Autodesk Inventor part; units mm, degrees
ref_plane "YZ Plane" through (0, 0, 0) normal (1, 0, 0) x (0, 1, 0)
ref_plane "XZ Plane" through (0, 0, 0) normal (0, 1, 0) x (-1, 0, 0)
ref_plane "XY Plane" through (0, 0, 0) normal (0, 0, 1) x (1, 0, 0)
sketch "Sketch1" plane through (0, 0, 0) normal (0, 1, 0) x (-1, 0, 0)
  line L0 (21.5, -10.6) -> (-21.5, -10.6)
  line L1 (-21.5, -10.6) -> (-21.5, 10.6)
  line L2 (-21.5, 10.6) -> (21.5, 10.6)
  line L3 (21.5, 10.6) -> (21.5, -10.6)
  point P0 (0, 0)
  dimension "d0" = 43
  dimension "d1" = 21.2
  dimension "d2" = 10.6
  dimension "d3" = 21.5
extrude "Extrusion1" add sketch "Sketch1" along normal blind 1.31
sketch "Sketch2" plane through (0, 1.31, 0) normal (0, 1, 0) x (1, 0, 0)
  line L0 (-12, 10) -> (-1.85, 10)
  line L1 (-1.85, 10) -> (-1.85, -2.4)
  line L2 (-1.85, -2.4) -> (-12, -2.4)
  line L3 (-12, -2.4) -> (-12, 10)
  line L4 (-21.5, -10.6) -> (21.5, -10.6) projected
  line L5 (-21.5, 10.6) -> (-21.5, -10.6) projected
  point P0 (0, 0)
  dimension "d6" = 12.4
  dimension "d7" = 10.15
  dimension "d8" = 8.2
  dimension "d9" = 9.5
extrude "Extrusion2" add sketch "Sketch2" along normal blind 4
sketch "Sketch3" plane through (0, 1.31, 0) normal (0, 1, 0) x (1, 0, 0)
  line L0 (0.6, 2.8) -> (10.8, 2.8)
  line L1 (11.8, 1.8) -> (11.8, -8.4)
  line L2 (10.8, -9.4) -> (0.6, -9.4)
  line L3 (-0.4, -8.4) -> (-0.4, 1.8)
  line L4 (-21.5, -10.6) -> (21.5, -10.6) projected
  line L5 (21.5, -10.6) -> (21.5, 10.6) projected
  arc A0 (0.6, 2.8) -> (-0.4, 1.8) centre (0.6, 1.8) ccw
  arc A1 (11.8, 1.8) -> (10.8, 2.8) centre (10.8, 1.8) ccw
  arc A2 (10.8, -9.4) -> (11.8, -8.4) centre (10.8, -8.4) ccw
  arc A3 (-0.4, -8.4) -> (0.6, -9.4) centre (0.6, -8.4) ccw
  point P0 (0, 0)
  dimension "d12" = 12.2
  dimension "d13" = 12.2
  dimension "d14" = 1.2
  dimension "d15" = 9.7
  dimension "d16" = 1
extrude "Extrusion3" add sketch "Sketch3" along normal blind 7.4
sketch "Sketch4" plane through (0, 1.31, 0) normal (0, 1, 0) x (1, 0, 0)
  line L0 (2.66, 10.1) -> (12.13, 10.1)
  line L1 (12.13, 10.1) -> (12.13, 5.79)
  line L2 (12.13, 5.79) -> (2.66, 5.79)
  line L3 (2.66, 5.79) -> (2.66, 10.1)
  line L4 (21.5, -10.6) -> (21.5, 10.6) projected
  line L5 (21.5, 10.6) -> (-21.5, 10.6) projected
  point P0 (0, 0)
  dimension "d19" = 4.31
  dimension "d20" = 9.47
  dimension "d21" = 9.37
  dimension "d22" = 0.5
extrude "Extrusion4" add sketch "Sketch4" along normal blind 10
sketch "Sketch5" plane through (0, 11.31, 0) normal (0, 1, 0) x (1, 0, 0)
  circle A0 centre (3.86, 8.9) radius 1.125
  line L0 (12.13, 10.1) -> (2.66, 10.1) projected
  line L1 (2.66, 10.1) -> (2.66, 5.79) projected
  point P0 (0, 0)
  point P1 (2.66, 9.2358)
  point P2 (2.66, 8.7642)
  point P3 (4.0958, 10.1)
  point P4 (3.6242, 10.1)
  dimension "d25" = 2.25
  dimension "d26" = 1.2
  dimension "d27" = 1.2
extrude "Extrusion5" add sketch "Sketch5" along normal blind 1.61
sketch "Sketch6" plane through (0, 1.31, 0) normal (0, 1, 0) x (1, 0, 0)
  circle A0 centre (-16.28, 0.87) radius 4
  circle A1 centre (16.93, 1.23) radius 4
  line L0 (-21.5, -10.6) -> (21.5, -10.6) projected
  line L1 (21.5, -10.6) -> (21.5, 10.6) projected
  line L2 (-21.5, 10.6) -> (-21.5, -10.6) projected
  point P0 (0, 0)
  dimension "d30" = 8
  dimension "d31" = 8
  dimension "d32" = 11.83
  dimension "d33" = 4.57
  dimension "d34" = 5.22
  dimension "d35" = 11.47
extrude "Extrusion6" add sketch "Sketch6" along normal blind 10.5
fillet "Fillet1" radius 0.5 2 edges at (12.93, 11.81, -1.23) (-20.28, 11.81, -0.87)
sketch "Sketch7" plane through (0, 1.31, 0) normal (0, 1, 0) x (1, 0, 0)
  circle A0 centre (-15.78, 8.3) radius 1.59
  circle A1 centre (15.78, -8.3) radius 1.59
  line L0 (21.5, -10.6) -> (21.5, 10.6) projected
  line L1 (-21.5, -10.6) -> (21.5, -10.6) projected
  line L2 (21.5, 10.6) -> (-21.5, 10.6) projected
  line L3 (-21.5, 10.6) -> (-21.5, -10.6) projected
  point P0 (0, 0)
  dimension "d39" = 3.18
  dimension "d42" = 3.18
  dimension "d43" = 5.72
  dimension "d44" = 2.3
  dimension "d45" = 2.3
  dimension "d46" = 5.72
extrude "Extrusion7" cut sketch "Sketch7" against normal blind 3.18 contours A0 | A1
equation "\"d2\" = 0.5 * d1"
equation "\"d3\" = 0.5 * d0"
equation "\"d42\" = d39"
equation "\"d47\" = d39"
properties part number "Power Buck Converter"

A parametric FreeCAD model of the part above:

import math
import FreeCAD as App
import Part
import Sketcher


def edges_at(feature, points):
    """Names of the edges that pass closest to the given points."""
    edges = feature.Shape.Edges
    near = lambda p: min(range(len(edges)), key=lambda i: edges[i].distToShape(Part.Vertex(*p))[0])
    return sorted({f"Edge{near(p) + 1}" for p in points})

doc = App.newDocument("Part")
body = doc.addObject("PartDesign::Body", "Body")

sketch1 = doc.addObject("Sketcher::SketchObject", "Sketch")
body.addObject(sketch1)
sketch1.AttachmentSupport = (doc.XZ_Plane, [""])
sketch1.MapMode = "FlatFace"
sketch1.addGeometry([
    Part.LineSegment(App.Vector(22, -11, 0), App.Vector(-22, -11, 0)),
    Part.LineSegment(App.Vector(-22, -11, 0), App.Vector(-22, 11, 0)),
    Part.LineSegment(App.Vector(-22, 11, 0), App.Vector(22, 11, 0)),
    Part.LineSegment(App.Vector(22, 11, 0), App.Vector(22, -11, 0)),
], False)
sketch1.addConstraint([
    Sketcher.Constraint("Coincident", 0, 2, 1, 1),
    Sketcher.Constraint("Coincident", 1, 2, 2, 1),
    Sketcher.Constraint("Coincident", 2, 2, 3, 1),
    Sketcher.Constraint("Coincident", 3, 2, 0, 1),
    Sketcher.Constraint("Horizontal", 0),
    Sketcher.Constraint("Vertical", 1),
    Sketcher.Constraint("Horizontal", 2),
    Sketcher.Constraint("Vertical", 3),
    Sketcher.Constraint("Symmetric", 0, 2, 2, 2, -1, 1),
    Sketcher.Constraint("DistanceX", 0, 2, 0, 1, 43.0),
    Sketcher.Constraint("DistanceY", 1, 1, 1, 2, 21.2),
])
pad1 = doc.addObject("PartDesign::Pad", "Pad")
body.addObject(pad1)
pad1.Profile = sketch1
pad1.Length = 1.31
pad1.Reversed = True

sketch2 = doc.addObject("Sketcher::SketchObject", "Sketch001")
body.addObject(sketch2)
sketch2.AttachmentSupport = (doc.XZ_Plane, [""])
sketch2.MapMode = "FlatFace"
sketch2.AttachmentOffset = App.Placement(App.Vector(0, 0, -1.31), App.Rotation())
sketch2.addGeometry([
    Part.LineSegment(App.Vector(-2, -10, 0), App.Vector(-12, -10, 0)),
    Part.LineSegment(App.Vector(-12, -10, 0), App.Vector(-12, 2, 0)),
    Part.LineSegment(App.Vector(-12, 2, 0), App.Vector(-2, 2, 0)),
    Part.LineSegment(App.Vector(-2, 2, 0), App.Vector(-2, -10, 0)),
], False)
sketch2.addConstraint([
    Sketcher.Constraint("Coincident", 0, 2, 1, 1),
    Sketcher.Constraint("Coincident", 1, 2, 2, 1),
    Sketcher.Constraint("Coincident", 2, 2, 3, 1),
    Sketcher.Constraint("Coincident", 3, 2, 0, 1),
    Sketcher.Constraint("Horizontal", 0),
    Sketcher.Constraint("Vertical", 1),
    Sketcher.Constraint("Horizontal", 2),
    Sketcher.Constraint("Vertical", 3),
    Sketcher.Constraint("DistanceY", 1, 1, 1, 2, 12.4),
    Sketcher.Constraint("DistanceX", 0, 2, 0, 1, 10.15),
    Sketcher.Constraint("DistanceX", 0, 2, -1, 1, 12.0),
    Sketcher.Constraint("DistanceY", 0, 2, -1, 1, 10.0),
])
pad2 = doc.addObject("PartDesign::Pad", "Pad001")
body.addObject(pad2)
pad2.Profile = sketch2
pad2.Length = 4
pad2.Reversed = True

sketch3 = doc.addObject("Sketcher::SketchObject", "Sketch002")
body.addObject(sketch3)
sketch3.AttachmentSupport = (doc.XZ_Plane, [""])
sketch3.MapMode = "FlatFace"
sketch3.AttachmentOffset = App.Placement(App.Vector(0, 0, -1.31), App.Rotation())
sketch3.addGeometry([
    Part.LineSegment(App.Vector(10.8, -2.8, 0), App.Vector(0.6, -2.8, 0)),
    Part.ArcOfCircle(Part.Circle(App.Vector(0.6, -1.8, 0), App.Vector(0, 0, 1), 1), math.radians(180), math.radians(270)),
    Part.LineSegment(App.Vector(-0.4, -1.8, 0), App.Vector(-0.4, 8.4, 0)),
    Part.ArcOfCircle(Part.Circle(App.Vector(0.6, 8.4, 0), App.Vector(0, 0, 1), 1), math.radians(90), math.radians(180)),
    Part.LineSegment(App.Vector(0.6, 9.4, 0), App.Vector(10.8, 9.4, 0)),
    Part.ArcOfCircle(Part.Circle(App.Vector(10.8, 8.4, 0), App.Vector(0, 0, 1), 1), math.radians(0), math.radians(90)),
    Part.LineSegment(App.Vector(11.8, 8.4, 0), App.Vector(11.8, -1.8, 0)),
    Part.ArcOfCircle(Part.Circle(App.Vector(10.8, -1.8, 0), App.Vector(0, 0, 1), 1), math.radians(-90), math.radians(0)),
], False)
sketch3.addConstraint([
    Sketcher.Constraint("Tangent", 0, 2, 1, 2),
    Sketcher.Constraint("Tangent", 1, 1, 2, 1),
    Sketcher.Constraint("Tangent", 2, 2, 3, 2),
    Sketcher.Constraint("Tangent", 3, 1, 4, 1),
    Sketcher.Constraint("Tangent", 4, 2, 5, 2),
    Sketcher.Constraint("Tangent", 5, 1, 6, 1),
    Sketcher.Constraint("Tangent", 6, 2, 7, 2),
    Sketcher.Constraint("Tangent", 7, 1, 0, 1),
    Sketcher.Constraint("Horizontal", 0),
    Sketcher.Constraint("Vertical", 2),
    Sketcher.Constraint("Horizontal", 4),
    Sketcher.Constraint("Vertical", 6),
    Sketcher.Constraint("Equal", 1, 3),
    Sketcher.Constraint("Equal", 3, 5),
    Sketcher.Constraint("Equal", 5, 7),
    Sketcher.Constraint("Equal", 4, 2),
    Sketcher.Constraint("Radius", 1, 1.0),
    Sketcher.Constraint("DistanceX", 0, 2, 0, 1, 10.2),
    Sketcher.Constraint("DistanceX", -1, 1, 1, 3, 0.6),
    Sketcher.Constraint("DistanceY", 1, 3, -1, 1, 1.8),
])
pad3 = doc.addObject("PartDesign::Pad", "Pad002")
body.addObject(pad3)
pad3.Profile = sketch3
pad3.Length = 7.4
pad3.Reversed = True

sketch4 = doc.addObject("Sketcher::SketchObject", "Sketch003")
body.addObject(sketch4)
sketch4.AttachmentSupport = (doc.XZ_Plane, [""])
sketch4.MapMode = "FlatFace"
sketch4.AttachmentOffset = App.Placement(App.Vector(0, 0, -1.31), App.Rotation())
sketch4.addGeometry([
    Part.LineSegment(App.Vector(12.1, -10.1, 0), App.Vector(2.7, -10.1, 0)),
    Part.LineSegment(App.Vector(2.7, -10.1, 0), App.Vector(2.7, -5.8, 0)),
    Part.LineSegment(App.Vector(2.7, -5.8, 0), App.Vector(12.1, -5.8, 0)),
    Part.LineSegment(App.Vector(12.1, -5.8, 0), App.Vector(12.1, -10.1, 0)),
], False)
sketch4.addConstraint([
    Sketcher.Constraint("Coincident", 0, 2, 1, 1),
    Sketcher.Constraint("Coincident", 1, 2, 2, 1),
    Sketcher.Constraint("Coincident", 2, 2, 3, 1),
    Sketcher.Constraint("Coincident", 3, 2, 0, 1),
    Sketcher.Constraint("Horizontal", 0),
    Sketcher.Constraint("Vertical", 1),
    Sketcher.Constraint("Horizontal", 2),
    Sketcher.Constraint("Vertical", 3),
    Sketcher.Constraint("DistanceX", 0, 2, 0, 1, 9.47),
    Sketcher.Constraint("DistanceY", 1, 1, 1, 2, 4.31),
    Sketcher.Constraint("DistanceY", 0, 2, -1, 1, 10.1),
    Sketcher.Constraint("DistanceX", -1, 1, 0, 2, 2.66),
])
pad4 = doc.addObject("PartDesign::Pad", "Pad003")
body.addObject(pad4)
pad4.Profile = sketch4
pad4.Length = 10
pad4.Reversed = True

sketch5 = doc.addObject("Sketcher::SketchObject", "Sketch004")
body.addObject(sketch5)
sketch5.AttachmentSupport = (doc.XZ_Plane, [""])
sketch5.MapMode = "FlatFace"
sketch5.AttachmentOffset = App.Placement(App.Vector(0, 0, -11.31), App.Rotation())
sketch5.addGeometry(Part.Circle(App.Vector(3.9, -8.9, 0), App.Vector(0, 0, 1), 1.1), False)
sketch5.addConstraint([
    Sketcher.Constraint("Diameter", 0, 2.25),
    Sketcher.Constraint("DistanceY", 0, 3, -1, 1, 8.9),
    Sketcher.Constraint("DistanceX", -1, 1, 0, 3, 3.86),
])
pad5 = doc.addObject("PartDesign::Pad", "Pad004")
body.addObject(pad5)
pad5.Profile = sketch5
pad5.Length = 1.61
pad5.Reversed = True

sketch6 = doc.addObject("Sketcher::SketchObject", "Sketch005")
body.addObject(sketch6)
sketch6.AttachmentSupport = (doc.XZ_Plane, [""])
sketch6.MapMode = "FlatFace"
sketch6.AttachmentOffset = App.Placement(App.Vector(0, 0, -1.31), App.Rotation())
sketch6.addGeometry([
    Part.Circle(App.Vector(-16.3, -0.9, 0), App.Vector(0, 0, 1), 4),
    Part.Circle(App.Vector(16.9, -1.2, 0), App.Vector(0, 0, 1), 4),
], False)
sketch6.addConstraint([
    Sketcher.Constraint("Equal", 0, 1),
    Sketcher.Constraint("Diameter", 0, 8.0),
    Sketcher.Constraint("DistanceX", 0, 3, -1, 1, 16.28),
    Sketcher.Constraint("DistanceY", 0, 3, -1, 1, 0.87),
    Sketcher.Constraint("DistanceX", -1, 1, 1, 3, 16.93),
    Sketcher.Constraint("DistanceY", 1, 3, -1, 1, 1.23),
])
pad6 = doc.addObject("PartDesign::Pad", "Pad005")
body.addObject(pad6)
pad6.Profile = sketch6
pad6.Length = 10.5
pad6.Reversed = True
doc.recompute()

fillet = doc.addObject("PartDesign::Fillet", "Fillet")
body.addObject(fillet)
fillet.Base = (pad6, edges_at(pad6, [(12.93, 11.81, -1.23), (-20.28, 11.81, -0.87)]))
fillet.Radius = 0.5

sketch7 = doc.addObject("Sketcher::SketchObject", "Sketch006")
body.addObject(sketch7)
sketch7.AttachmentSupport = (doc.XZ_Plane, [""])
sketch7.MapMode = "FlatFace"
sketch7.AttachmentOffset = App.Placement(App.Vector(0, 0, -1.31), App.Rotation())
sketch7.addGeometry([
    Part.Circle(App.Vector(-15.8, -8.3, 0), App.Vector(0, 0, 1), 1.6),
    Part.Circle(App.Vector(15.8, 8.3, 0), App.Vector(0, 0, 1), 1.6),
], False)
sketch7.addConstraint([
    Sketcher.Constraint("Equal", 0, 1),
    Sketcher.Constraint("Symmetric", 0, 3, 1, 3, -1, 1),
    Sketcher.Constraint("Diameter", 0, 3.18),
    Sketcher.Constraint("DistanceY", 0, 3, -1, 1, 8.3),
    Sketcher.Constraint("DistanceX", 0, 3, -1, 1, 15.78),
])
pocket1 = doc.addObject("PartDesign::Pocket", "Pocket")
body.addObject(pocket1)
pocket1.Profile = sketch7
pocket1.Length = 3.18
pocket1.Reversed = True

doc.recompute()
